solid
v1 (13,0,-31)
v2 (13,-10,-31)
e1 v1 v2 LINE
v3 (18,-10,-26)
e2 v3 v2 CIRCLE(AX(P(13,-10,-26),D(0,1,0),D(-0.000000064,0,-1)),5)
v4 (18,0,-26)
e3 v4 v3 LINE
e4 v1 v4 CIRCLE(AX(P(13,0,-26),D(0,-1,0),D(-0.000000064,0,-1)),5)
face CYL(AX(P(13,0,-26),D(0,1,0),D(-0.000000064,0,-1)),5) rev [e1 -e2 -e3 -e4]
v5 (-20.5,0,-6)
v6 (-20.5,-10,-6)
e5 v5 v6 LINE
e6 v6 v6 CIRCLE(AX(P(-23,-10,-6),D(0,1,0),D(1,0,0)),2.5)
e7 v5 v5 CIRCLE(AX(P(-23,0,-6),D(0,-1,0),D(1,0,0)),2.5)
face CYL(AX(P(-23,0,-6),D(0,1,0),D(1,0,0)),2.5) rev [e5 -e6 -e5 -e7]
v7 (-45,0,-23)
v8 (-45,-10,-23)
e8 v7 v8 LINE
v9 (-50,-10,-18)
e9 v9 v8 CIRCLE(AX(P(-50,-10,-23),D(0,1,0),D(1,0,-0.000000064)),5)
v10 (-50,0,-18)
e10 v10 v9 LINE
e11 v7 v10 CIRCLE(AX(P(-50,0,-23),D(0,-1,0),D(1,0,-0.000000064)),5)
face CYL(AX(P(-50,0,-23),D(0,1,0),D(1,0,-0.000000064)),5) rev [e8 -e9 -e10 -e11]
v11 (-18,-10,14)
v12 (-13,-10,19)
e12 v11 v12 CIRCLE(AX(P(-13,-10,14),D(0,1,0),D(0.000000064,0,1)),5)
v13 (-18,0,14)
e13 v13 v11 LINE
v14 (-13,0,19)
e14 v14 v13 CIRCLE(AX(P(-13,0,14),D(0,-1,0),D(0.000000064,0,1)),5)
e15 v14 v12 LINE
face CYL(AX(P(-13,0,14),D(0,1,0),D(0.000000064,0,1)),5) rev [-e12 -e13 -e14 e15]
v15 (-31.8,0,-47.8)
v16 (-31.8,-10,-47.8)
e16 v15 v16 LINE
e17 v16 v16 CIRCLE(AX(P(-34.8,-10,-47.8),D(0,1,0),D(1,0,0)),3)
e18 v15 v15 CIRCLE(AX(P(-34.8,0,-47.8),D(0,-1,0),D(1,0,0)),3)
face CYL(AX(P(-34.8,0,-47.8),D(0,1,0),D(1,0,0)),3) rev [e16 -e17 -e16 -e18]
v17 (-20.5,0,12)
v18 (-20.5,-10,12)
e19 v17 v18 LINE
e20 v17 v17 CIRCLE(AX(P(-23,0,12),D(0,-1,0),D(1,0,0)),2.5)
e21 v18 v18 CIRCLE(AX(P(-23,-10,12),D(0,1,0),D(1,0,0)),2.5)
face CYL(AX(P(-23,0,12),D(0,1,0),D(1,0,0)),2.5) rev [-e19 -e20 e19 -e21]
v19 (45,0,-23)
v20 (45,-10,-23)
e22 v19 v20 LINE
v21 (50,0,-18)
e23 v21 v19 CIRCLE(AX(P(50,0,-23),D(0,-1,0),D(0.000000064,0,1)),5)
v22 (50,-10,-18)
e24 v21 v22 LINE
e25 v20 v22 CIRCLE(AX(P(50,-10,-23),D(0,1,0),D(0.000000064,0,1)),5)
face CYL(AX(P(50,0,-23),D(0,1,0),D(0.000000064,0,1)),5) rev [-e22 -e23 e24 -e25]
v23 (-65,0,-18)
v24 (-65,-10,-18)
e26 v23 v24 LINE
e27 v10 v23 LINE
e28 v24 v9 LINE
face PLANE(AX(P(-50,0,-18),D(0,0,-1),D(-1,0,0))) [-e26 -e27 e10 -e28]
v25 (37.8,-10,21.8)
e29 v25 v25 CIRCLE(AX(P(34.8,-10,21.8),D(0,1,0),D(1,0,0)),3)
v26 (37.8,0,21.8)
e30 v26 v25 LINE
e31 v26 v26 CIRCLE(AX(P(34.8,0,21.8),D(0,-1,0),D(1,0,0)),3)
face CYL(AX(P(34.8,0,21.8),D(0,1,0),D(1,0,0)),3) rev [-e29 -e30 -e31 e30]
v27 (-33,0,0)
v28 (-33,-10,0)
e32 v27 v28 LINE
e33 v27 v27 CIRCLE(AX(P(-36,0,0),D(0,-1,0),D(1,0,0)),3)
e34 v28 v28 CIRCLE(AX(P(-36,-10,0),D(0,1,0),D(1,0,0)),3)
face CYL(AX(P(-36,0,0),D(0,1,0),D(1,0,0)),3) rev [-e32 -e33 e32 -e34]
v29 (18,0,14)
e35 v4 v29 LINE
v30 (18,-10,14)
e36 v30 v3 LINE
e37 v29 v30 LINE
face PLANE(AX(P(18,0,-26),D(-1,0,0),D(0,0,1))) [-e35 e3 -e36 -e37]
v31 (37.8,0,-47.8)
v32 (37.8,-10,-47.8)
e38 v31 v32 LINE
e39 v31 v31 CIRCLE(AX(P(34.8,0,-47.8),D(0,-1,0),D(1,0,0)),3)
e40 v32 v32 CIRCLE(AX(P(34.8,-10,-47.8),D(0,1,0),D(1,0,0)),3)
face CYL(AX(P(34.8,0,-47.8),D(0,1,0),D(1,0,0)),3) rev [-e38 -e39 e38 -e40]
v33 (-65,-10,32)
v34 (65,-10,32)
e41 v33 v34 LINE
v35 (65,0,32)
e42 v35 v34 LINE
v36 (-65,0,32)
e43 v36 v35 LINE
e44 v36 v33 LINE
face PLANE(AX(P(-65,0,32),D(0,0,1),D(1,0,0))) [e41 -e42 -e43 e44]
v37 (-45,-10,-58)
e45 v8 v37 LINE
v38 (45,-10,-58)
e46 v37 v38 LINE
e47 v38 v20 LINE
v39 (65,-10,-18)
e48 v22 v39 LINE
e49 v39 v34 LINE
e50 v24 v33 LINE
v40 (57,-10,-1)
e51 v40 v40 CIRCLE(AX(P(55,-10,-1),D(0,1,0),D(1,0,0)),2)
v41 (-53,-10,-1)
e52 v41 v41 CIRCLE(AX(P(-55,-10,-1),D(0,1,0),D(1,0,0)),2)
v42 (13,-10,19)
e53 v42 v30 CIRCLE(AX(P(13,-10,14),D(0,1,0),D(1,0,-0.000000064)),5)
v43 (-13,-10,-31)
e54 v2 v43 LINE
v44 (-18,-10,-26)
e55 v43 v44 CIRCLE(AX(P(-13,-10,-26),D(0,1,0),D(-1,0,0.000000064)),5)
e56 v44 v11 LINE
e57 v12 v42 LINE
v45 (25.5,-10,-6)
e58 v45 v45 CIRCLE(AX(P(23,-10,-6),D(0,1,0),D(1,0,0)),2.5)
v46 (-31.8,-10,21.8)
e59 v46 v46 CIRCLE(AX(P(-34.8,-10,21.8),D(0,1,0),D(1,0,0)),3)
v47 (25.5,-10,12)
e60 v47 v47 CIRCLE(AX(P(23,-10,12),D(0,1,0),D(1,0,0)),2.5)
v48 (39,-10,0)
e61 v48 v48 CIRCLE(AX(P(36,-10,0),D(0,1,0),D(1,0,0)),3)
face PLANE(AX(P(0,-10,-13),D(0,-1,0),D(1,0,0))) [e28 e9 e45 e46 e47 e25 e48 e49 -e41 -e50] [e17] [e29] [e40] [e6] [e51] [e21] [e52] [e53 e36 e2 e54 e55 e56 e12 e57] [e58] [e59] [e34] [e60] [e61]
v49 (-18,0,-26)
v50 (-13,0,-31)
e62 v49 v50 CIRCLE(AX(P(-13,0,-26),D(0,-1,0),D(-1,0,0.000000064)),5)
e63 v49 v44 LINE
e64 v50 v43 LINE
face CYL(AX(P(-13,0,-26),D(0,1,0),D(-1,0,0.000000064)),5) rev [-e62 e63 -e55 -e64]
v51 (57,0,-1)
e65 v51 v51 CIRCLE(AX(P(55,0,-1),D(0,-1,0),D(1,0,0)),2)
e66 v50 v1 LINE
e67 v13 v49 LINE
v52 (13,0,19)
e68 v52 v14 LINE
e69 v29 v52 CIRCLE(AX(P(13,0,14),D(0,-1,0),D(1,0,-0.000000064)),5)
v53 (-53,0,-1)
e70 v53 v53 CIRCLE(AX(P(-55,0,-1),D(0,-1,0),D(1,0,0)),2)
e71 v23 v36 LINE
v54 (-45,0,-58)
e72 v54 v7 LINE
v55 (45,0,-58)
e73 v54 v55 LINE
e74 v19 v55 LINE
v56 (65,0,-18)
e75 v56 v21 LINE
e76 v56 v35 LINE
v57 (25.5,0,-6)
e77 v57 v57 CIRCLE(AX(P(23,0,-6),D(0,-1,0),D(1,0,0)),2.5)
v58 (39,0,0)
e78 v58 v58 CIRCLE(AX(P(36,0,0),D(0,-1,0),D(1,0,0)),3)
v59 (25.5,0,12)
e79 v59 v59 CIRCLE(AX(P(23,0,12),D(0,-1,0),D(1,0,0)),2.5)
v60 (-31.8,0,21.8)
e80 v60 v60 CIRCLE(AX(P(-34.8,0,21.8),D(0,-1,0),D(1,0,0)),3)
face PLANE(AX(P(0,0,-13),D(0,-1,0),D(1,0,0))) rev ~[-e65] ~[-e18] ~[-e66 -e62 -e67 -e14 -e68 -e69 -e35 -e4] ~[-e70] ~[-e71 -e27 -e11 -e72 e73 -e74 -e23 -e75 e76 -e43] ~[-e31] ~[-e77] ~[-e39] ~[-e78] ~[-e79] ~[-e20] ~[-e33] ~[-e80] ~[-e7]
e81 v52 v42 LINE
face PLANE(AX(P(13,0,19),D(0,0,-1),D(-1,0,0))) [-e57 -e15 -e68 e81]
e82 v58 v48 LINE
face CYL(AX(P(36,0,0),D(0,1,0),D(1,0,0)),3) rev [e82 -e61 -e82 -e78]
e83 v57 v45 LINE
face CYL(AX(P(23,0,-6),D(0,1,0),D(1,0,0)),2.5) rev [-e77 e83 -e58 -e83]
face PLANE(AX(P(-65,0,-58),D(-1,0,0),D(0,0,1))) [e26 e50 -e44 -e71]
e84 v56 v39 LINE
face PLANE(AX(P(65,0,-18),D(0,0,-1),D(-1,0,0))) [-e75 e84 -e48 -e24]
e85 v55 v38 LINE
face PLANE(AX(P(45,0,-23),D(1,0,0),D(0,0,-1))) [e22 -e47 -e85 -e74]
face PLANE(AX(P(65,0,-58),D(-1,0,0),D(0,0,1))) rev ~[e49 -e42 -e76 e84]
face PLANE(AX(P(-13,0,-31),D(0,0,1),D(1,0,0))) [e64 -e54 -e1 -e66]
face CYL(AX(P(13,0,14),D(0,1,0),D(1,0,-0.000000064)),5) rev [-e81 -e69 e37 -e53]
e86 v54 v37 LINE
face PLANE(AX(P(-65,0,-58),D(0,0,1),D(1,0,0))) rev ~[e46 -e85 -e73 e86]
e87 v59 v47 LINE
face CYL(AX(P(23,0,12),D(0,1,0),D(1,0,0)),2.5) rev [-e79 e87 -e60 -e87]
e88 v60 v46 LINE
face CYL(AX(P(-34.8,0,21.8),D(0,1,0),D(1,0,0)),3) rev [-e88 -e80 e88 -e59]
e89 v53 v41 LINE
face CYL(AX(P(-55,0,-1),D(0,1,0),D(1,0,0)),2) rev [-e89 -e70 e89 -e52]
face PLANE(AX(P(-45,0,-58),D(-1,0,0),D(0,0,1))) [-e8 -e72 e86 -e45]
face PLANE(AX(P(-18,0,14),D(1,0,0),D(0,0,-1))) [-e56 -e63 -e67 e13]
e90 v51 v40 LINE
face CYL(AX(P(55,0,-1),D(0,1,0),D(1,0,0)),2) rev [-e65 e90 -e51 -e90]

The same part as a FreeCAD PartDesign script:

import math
import FreeCAD as App
import Part
import Sketcher

V = App.Vector
Q = App.Units.Quantity

doc = App.newDocument("Part")
body = doc.addObject("PartDesign::Body", "Body")

# Sketch on XZ plane
sketch1 = doc.addObject("Sketcher::SketchObject", "Sketch")
body.addObject(sketch1)
sketch1.AttachmentSupport = (doc.XZ_Plane, [""])
sketch1.MapMode = "FlatFace"
sketch1.addGeometry([
    Part.LineSegment(V(-65, 32, 0), V(-65, -58, 0)),
    Part.LineSegment(V(-65, -58, 0), V(65, -58, 0)),
    Part.LineSegment(V(65, -58, 0), V(65, 32, 0)),
    Part.LineSegment(V(65, 32, 0), V(-65, 32, 0)),
], False)
sketch1.addConstraint([
    Sketcher.Constraint("Coincident", 0, 2, 1, 1),
    Sketcher.Constraint("Coincident", 1, 2, 2, 1),
    Sketcher.Constraint("Coincident", 2, 2, 3, 1),
    Sketcher.Constraint("Coincident", 3, 2, 0, 1),
    Sketcher.Constraint("Vertical", 0),
    Sketcher.Constraint("Horizontal", 1),
    Sketcher.Constraint("Vertical", 2),
    Sketcher.Constraint("Horizontal", 3),
    Sketcher.Constraint("DistanceX", 1, 1, 1, 2, Q("130 mm")),
    Sketcher.Constraint("DistanceY", 0, 2, 0, 1, Q("90 mm")),
    Sketcher.Constraint("DistanceX", 0, 2, -1, 1, Q("65 mm")),
    Sketcher.Constraint("DistanceY", 0, 2, -1, 1, Q("58 mm")),
])
pad1 = doc.addObject("PartDesign::Pad", "Pad")
body.addObject(pad1)
pad1.Profile = sketch1
pad1.Length = 10

# Sketch on XZ plane
sketch2 = doc.addObject("Sketcher::SketchObject", "Sketch001")
body.addObject(sketch2)
sketch2.AttachmentSupport = (doc.XZ_Plane, [""])
sketch2.MapMode = "FlatFace"
sketch2.addGeometry([
    Part.Circle(V(23, -6, 0), V(0, 0, 1), 2.5),
    Part.Circle(V(23, 12, 0), V(0, 0, 1), 2.5),
    Part.Circle(V(-23, -6, 0), V(0, 0, 1), 2.5),
    Part.Circle(V(-23, 12, 0), V(0, 0, 1), 2.5),
], False)
sketch2.addConstraint([
    Sketcher.Constraint("Equal", 0, 1),
    Sketcher.Constraint("Equal", 1, 2),
    Sketcher.Constraint("Equal", 2, 3),
    Sketcher.Constraint("Symmetric", 0, 3, 2, 3, -2),
    Sketcher.Constraint("Symmetric", 1, 3, 3, 3, -2),
    Sketcher.Constraint("Vertical", 0, 3, 1, 3),
    Sketcher.Constraint("Diameter", 0, Q("5 mm")),
    Sketcher.Constraint("DistanceX", -1, 1, 0, 3, Q("23 mm")),
    Sketcher.Constraint("DistanceY", 0, 3, -1, 1, Q("6 mm")),
    Sketcher.Constraint("DistanceY", -1, 1, 1, 3, Q("12 mm")),
])
pocket1 = doc.addObject("PartDesign::Pocket", "Pocket")
body.addObject(pocket1)
pocket1.Profile = sketch2
pocket1.Type = "ThroughAll"
pocket1.Reversed = True

# Sketch on XZ plane
sketch3 = doc.addObject("Sketcher::SketchObject", "Sketch002")
body.addObject(sketch3)
sketch3.AttachmentSupport = (doc.XZ_Plane, [""])
sketch3.MapMode = "FlatFace"
sketch3.addGeometry([
    Part.Circle(V(-36, 0, 0), V(0, 0, 1), 3),  # 0
    Part.Circle(V(36, 0, 0), V(0, 0, 1), 3),  # 1
    Part.Circle(V(-55, -1, 0), V(0, 0, 1), 2),  # 2
    Part.Circle(V(55, -1, 0), V(0, 0, 1), 2),  # 3
    Part.ArcOfCircle(Part.Circle(V(13, 14, 0), V(0, 0, 1), 5), math.radians(0), math.radians(90)),  # 4
    Part.LineSegment(V(13, 19, 0), V(-13, 19, 0)),  # 5
    Part.ArcOfCircle(Part.Circle(V(-13, 14, 0), V(0, 0, 1), 5), math.radians(90), math.radians(180)),  # 6
    Part.LineSegment(V(-18, 14, 0), V(-18, -26, 0)),  # 7
    Part.ArcOfCircle(Part.Circle(V(-13, -26, 0), V(0, 0, 1), 5), math.radians(180), math.radians(270)),  # 8
    Part.LineSegment(V(-13, -31, 0), V(13, -31, 0)),  # 9
    Part.ArcOfCircle(Part.Circle(V(13, -26, 0), V(0, 0, 1), 5), math.radians(-90), math.radians(0)),  # 10
    Part.LineSegment(V(18, -26, 0), V(18, 14, 0)),  # 11
], False)
sketch3.addConstraint([
    Sketcher.Constraint("Tangent", 4, 2, 5, 1),
    Sketcher.Constraint("Tangent", 5, 2, 6, 1),
    Sketcher.Constraint("Tangent", 6, 2, 7, 1),
    Sketcher.Constraint("Tangent", 7, 2, 8, 1),
    Sketcher.Constraint("Tangent", 8, 2, 9, 1),
    Sketcher.Constraint("Tangent", 9, 2, 10, 1),
    Sketcher.Constraint("Tangent", 10, 2, 11, 1),
    Sketcher.Constraint("Tangent", 11, 2, 4, 1),
    Sketcher.Constraint("Horizontal", 5),
    Sketcher.Constraint("Vertical", 7),
    Sketcher.Constraint("Horizontal", 9),
    Sketcher.Constraint("Vertical", 11),
    Sketcher.Constraint("Equal", 0, 1),
    Sketcher.Constraint("Equal", 2, 3),
    Sketcher.Constraint("Equal", 4, 6),
    Sketcher.Constraint("Equal", 6, 8),
    Sketcher.Constraint("Equal", 8, 10),
    Sketcher.Constraint("Symmetric", 0, 3, 1, 3, -1, 1),
    Sketcher.Constraint("Symmetric", 2, 3, 3, 3, -2),
    Sketcher.Constraint("PointOnObject", 0, 3, -1),
    Sketcher.Constraint("Diameter", 0, Q("6 mm")),
    Sketcher.Constraint("Diameter", 2, Q("4 mm")),
    Sketcher.Constraint("Radius", 4, Q("5 mm")),
    Sketcher.Constraint("DistanceX", 5, 2, 5, 1, Q("26 mm")),
    Sketcher.Constraint("DistanceY", 7, 2, 7, 1, Q("40 mm")),
    Sketcher.Constraint("DistanceX", 0, 3, -1, 1, Q("36 mm")),
    Sketcher.Constraint("DistanceX", 2, 3, -1, 1, Q("55 mm")),
    Sketcher.Constraint("DistanceY", 2, 3, -1, 1, Q("1 mm")),
    Sketcher.Constraint("DistanceX", -1, 1, 4, 3, Q("13 mm")),
    Sketcher.Constraint("DistanceY", -1, 1, 4, 3, Q("14 mm")),
])
pocket2 = doc.addObject("PartDesign::Pocket", "Pocket001")
body.addObject(pocket2)
pocket2.Profile = sketch3
pocket2.Type = "ThroughAll"
pocket2.Reversed = True

# Sketch on XZ plane
sketch4 = doc.addObject("Sketcher::SketchObject", "Sketch003")
body.addObject(sketch4)
sketch4.AttachmentSupport = (doc.XZ_Plane, [""])
sketch4.MapMode = "FlatFace"
sketch4.addGeometry([
    Part.Circle(V(34.8, -47.8, 0), V(0, 0, 1), 3),
    Part.Circle(V(34.8, 21.8, 0), V(0, 0, 1), 3),
    Part.Circle(V(-34.8, -47.8, 0), V(0, 0, 1), 3),
    Part.Circle(V(-34.8, 21.8, 0), V(0, 0, 1), 3),
], False)
sketch4.addConstraint([
    Sketcher.Constraint("Equal", 0, 1),
    Sketcher.Constraint("Equal", 1, 2),
    Sketcher.Constraint("Equal", 2, 3),
    Sketcher.Constraint("Symmetric", 0, 3, 2, 3, -2),
    Sketcher.Constraint("Symmetric", 1, 3, 3, 3, -2),
    Sketcher.Constraint("Vertical", 0, 3, 1, 3),
    Sketcher.Constraint("Diameter", 0, Q("6 mm")),
    Sketcher.Constraint("DistanceX", -1, 1, 0, 3, Q("34.8 mm")),
    Sketcher.Constraint("DistanceY", 0, 3, -1, 1, Q("47.8 mm")),
    Sketcher.Constraint("DistanceY", -1, 1, 1, 3, Q("21.8 mm")),
])
pocket3 = doc.addObject("PartDesign::Pocket", "Pocket002")
body.addObject(pocket3)
pocket3.Profile = sketch4
pocket3.Type = "ThroughAll"
pocket3.Reversed = True

# Sketch on XZ plane
sketch5 = doc.addObject("Sketcher::SketchObject", "Sketch004")
body.addObject(sketch5)
sketch5.AttachmentSupport = (doc.XZ_Plane, [""])
sketch5.MapMode = "FlatFace"
sketch5.addGeometry([
    Part.LineSegment(V(-65, -18, 0), V(-65, -58, 0)),  # 0
    Part.LineSegment(V(-65, -58, 0), V(-45, -58, 0)),  # 1
    Part.LineSegment(V(-45, -58, 0), V(-45, -23, 0)),  # 2
    Part.ArcOfCircle(Part.Circle(V(-50, -23, 0), V(0, 0, 1), 5), math.radians(0), math.radians(90)),  # 3
    Part.LineSegment(V(-50, -18, 0), V(-65, -18, 0)),  # 4
    Part.LineSegment(V(45, -58, 0), V(65, -58, 0)),  # 5
    Part.LineSegment(V(65, -58, 0), V(65, -18, 0)),  # 6
    Part.LineSegment(V(65, -18, 0), V(50, -18, 0)),  # 7
    Part.ArcOfCircle(Part.Circle(V(50, -23, 0), V(0, 0, 1), 5), math.radians(90), math.radians(180)),  # 8
    Part.LineSegment(V(45, -23, 0), V(45, -58, 0)),  # 9
], False)
sketch5.addConstraint([
    Sketcher.Constraint("Coincident", 0, 2, 1, 1),
    Sketcher.Constraint("Coincident", 1, 2, 2, 1),
    Sketcher.Constraint("Tangent", 2, 2, 3, 1),
    Sketcher.Constraint("Tangent", 3, 2, 4, 1),
    Sketcher.Constraint("Coincident", 4, 2, 0, 1),
    Sketcher.Constraint("Coincident", 5, 2, 6, 1),
    Sketcher.Constraint("Coincident", 6, 2, 7, 1),
    Sketcher.Constraint("Tangent", 7, 2, 8, 1),
    Sketcher.Constraint("Tangent", 8, 2, 9, 1),
    Sketcher.Constraint("Coincident", 9, 2, 5, 1),
    Sketcher.Constraint("Vertical", 0),
    Sketcher.Constraint("Horizontal", 1),
    Sketcher.Constraint("Vertical", 2),
    Sketcher.Constraint("Horizontal", 4),
    Sketcher.Constraint("Horizontal", 5),
    Sketcher.Constraint("Vertical", 6),
    Sketcher.Constraint("Horizontal", 7),
    Sketcher.Constraint("Vertical", 9),
    Sketcher.Constraint("Equal", 3, 8),
    Sketcher.Constraint("Symmetric", 3, 3, 8, 3, -2),
    Sketcher.Constraint("Symmetric", 0, 2, 5, 2, -2),
    Sketcher.Constraint("Radius", 3, Q("5 mm")),
    Sketcher.Constraint("DistanceX", 1, 1, 1, 2, Q("20 mm")),
    Sketcher.Constraint("DistanceY", 0, 2, 0, 1, Q("40 mm")),
    Sketcher.Constraint("DistanceX", 3, 3, -1, 1, Q("50 mm")),
    Sketcher.Constraint("DistanceY", 3, 3, -1, 1, Q("23 mm")),
])
pocket4 = doc.addObject("PartDesign::Pocket", "Pocket003")
body.addObject(pocket4)
pocket4.Profile = sketch5
pocket4.Type = "ThroughAll"
pocket4.Reversed = True

doc.recompute()
